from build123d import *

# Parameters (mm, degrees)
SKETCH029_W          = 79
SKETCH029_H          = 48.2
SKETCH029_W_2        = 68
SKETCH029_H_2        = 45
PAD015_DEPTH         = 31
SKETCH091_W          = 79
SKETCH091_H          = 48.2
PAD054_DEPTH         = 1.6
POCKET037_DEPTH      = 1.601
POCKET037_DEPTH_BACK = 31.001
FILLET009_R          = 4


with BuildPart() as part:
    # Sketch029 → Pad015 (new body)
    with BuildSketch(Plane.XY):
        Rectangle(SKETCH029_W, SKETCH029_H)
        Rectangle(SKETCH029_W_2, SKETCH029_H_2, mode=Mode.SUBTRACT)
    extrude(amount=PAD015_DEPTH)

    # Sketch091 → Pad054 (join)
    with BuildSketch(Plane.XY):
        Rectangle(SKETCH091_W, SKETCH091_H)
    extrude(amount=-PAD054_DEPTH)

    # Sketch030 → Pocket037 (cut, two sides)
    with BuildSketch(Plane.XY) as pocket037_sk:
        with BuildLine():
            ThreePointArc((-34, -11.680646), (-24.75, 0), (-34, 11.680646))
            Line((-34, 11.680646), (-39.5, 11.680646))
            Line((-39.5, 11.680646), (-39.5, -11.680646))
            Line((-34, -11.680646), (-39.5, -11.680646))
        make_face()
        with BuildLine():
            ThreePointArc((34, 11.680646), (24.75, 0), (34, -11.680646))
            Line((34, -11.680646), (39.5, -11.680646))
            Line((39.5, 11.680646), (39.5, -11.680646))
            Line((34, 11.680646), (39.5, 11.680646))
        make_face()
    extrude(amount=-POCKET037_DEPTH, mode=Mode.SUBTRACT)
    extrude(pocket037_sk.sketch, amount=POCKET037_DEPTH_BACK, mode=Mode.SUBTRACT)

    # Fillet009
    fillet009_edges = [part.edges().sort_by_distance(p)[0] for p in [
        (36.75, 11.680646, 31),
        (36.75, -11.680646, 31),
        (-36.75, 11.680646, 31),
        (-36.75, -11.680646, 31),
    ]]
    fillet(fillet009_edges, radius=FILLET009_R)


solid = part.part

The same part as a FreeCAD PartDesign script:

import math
import FreeCAD as App
import Part
import Sketcher

V = App.Vector
Q = App.Units.Quantity


def edges_at(feature, points):
    """Names of the edges that pass closest to the given points."""
    edges = feature.Shape.Edges
    near = lambda p: min(range(len(edges)), key=lambda i: edges[i].distToShape(Part.Vertex(*p))[0])
    return sorted({f"Edge{near(p) + 1}" for p in points})


def add_polygon(sketch, points):
    """Adds a closed chain of lines whose ends are joined by coincident constraints."""
    first, n = sketch.GeometryCount, len(points)
    for a, b in zip(points, points[1:] + points[:1]):
        sketch.addGeometry(Part.LineSegment(App.Vector(*a, 0), App.Vector(*b, 0)), False)
    for i in range(n):
        sketch.addConstraint(Sketcher.Constraint("Coincident", first + i, 2, first + (i + 1) % n, 1))

doc = App.newDocument("Part")
body = doc.addObject("PartDesign::Body", "Body")

# Sketch on XY plane
sketch1 = doc.addObject("Sketcher::SketchObject", "Sketch")
body.addObject(sketch1)
sketch1.AttachmentSupport = (doc.XY_Plane, [""])
sketch1.MapMode = "FlatFace"
add_polygon(sketch1, [(-40, 24), (-40, -24), (40, -24), (40, 24)])  # lines 0-3
add_polygon(sketch1, [(34, -22), (-34, -22), (-34, 22), (34, 22)])  # lines 4-7
sketch1.addConstraint([
    Sketcher.Constraint("Vertical", 0),
    Sketcher.Constraint("Horizontal", 1),
    Sketcher.Constraint("Vertical", 2),
    Sketcher.Constraint("Horizontal", 3),
    Sketcher.Constraint("Horizontal", 4),
    Sketcher.Constraint("Vertical", 5),
    Sketcher.Constraint("Horizontal", 6),
    Sketcher.Constraint("Vertical", 7),
    Sketcher.Constraint("Symmetric", 0, 2, 2, 2, -1, 1),
    Sketcher.Constraint("Symmetric", 4, 2, 6, 2, -1, 1),
    Sketcher.Constraint("DistanceX", 1, 1, 1, 2, Q("79 mm")),
    Sketcher.Constraint("DistanceX", 4, 2, 4, 1, Q("68 mm")),
    Sketcher.Constraint("DistanceY", 5, 1, 5, 2, Q("45 mm")),
    Sketcher.Constraint("DistanceY", 0, 2, 0, 1, Q("48.2 mm")),
])
pad1 = doc.addObject("PartDesign::Pad", "Pad")
body.addObject(pad1)
pad1.Profile = sketch1
pad1.Length = 31

# Sketch on XY plane
sketch2 = doc.addObject("Sketcher::SketchObject", "Sketch001")
body.addObject(sketch2)
sketch2.AttachmentSupport = (doc.XY_Plane, [""])
sketch2.MapMode = "FlatFace"
add_polygon(sketch2, [(-40, 24), (-40, -24), (40, -24), (40, 24)])  # lines 0-3
sketch2.addConstraint([
    Sketcher.Constraint("Vertical", 0),
    Sketcher.Constraint("Horizontal", 1),
    Sketcher.Constraint("Vertical", 2),
    Sketcher.Constraint("Horizontal", 3),
    Sketcher.Constraint("Symmetric", 0, 2, 2, 2, -1, 1),
    Sketcher.Constraint("DistanceX", 1, 1, 1, 2, Q("79 mm")),
    Sketcher.Constraint("DistanceY", 0, 2, 0, 1, Q("48.2 mm")),
])
pad2 = doc.addObject("PartDesign::Pad", "Pad001")
body.addObject(pad2)
pad2.Profile = sketch2
pad2.Length = 1.6
pad2.Reversed = True

# Sketch on XY plane
sketch3 = doc.addObject("Sketcher::SketchObject", "Sketch002")
body.addObject(sketch3)
sketch3.AttachmentSupport = (doc.XY_Plane, [""])
sketch3.MapMode = "FlatFace"
sketch3.addGeometry([
    Part.ArcOfCircle(Part.Circle(V(-37, 0, 0), V(0, 0, 1), 12), math.radians(-77), math.radians(77)),  # 0
    Part.LineSegment(V(-34, 12, 0), V(-40, 12, 0)),  # 1
    Part.LineSegment(V(-40, 12, 0), V(-40, -12, 0)),  # 2
    Part.LineSegment(V(-40, -12, 0), V(-34, -12, 0)),  # 3
    Part.ArcOfCircle(Part.Circle(V(37, 0, 0), V(0, 0, 1), 12), math.radians(103), math.radians(257)),  # 4
    Part.LineSegment(V(34, -12, 0), V(40, -12, 0)),  # 5
    Part.LineSegment(V(40, -12, 0), V(40, 12, 0)),  # 6
    Part.LineSegment(V(40, 12, 0), V(34, 12, 0)),  # 7
], False)
sketch3.addConstraint([
    Sketcher.Constraint("Coincident", 0, 2, 1, 1),
    Sketcher.Constraint("Coincident", 1, 2, 2, 1),
    Sketcher.Constraint("Coincident", 2, 2, 3, 1),
    Sketcher.Constraint("Coincident", 3, 2, 0, 1),
    Sketcher.Constraint("Coincident", 4, 2, 5, 1),
    Sketcher.Constraint("Coincident", 5, 2, 6, 1),
    Sketcher.Constraint("Coincident", 6, 2, 7, 1),
    Sketcher.Constraint("Coincident", 7, 2, 4, 1),
    Sketcher.Constraint("Horizontal", 1),
    Sketcher.Constraint("Vertical", 2),
    Sketcher.Constraint("Horizontal", 3),
    Sketcher.Constraint("Horizontal", 5),
    Sketcher.Constraint("Vertical", 6),
    Sketcher.Constraint("Horizontal", 7),
    Sketcher.Constraint("Equal", 0, 4),
    Sketcher.Constraint("Symmetric", 0, 3, 4, 3, -1, 1),
    Sketcher.Constraint("Symmetric", 1, 2, 5, 2, -1, 1),
    Sketcher.Constraint("Symmetric", 3, 2, 4, 2, -2),
    Sketcher.Constraint("Horizontal", 1, 2, 6, 2),
    Sketcher.Constraint("Radius", 0, Q("12 mm")),
    Sketcher.Constraint("DistanceX", 1, 2, 1, 1, Q("5.5 mm")),
    Sketcher.Constraint("DistanceX", 0, 2, -1, 1, Q("34 mm")),
    Sketcher.Constraint("DistanceX", 0, 3, 4, 3, Q("73.499999 mm")),
])
pocket1 = doc.addObject("PartDesign::Pocket", "Pocket")
body.addObject(pocket1)
pocket1.Profile = sketch3
pocket1.Type = "ThroughAll"
pocket1.Midplane = True
doc.recompute()

fillet = doc.addObject("PartDesign::Fillet", "Fillet")
body.addObject(fillet)
fillet.Base = (pocket1, edges_at(pocket1, [
    (36.75, 11.681, 31),
    (36.75, -11.681, 31),
    (-36.75, 11.681, 31),
    (-36.75, -11.681, 31),
]))
fillet.Radius = 4

doc.recompute()
